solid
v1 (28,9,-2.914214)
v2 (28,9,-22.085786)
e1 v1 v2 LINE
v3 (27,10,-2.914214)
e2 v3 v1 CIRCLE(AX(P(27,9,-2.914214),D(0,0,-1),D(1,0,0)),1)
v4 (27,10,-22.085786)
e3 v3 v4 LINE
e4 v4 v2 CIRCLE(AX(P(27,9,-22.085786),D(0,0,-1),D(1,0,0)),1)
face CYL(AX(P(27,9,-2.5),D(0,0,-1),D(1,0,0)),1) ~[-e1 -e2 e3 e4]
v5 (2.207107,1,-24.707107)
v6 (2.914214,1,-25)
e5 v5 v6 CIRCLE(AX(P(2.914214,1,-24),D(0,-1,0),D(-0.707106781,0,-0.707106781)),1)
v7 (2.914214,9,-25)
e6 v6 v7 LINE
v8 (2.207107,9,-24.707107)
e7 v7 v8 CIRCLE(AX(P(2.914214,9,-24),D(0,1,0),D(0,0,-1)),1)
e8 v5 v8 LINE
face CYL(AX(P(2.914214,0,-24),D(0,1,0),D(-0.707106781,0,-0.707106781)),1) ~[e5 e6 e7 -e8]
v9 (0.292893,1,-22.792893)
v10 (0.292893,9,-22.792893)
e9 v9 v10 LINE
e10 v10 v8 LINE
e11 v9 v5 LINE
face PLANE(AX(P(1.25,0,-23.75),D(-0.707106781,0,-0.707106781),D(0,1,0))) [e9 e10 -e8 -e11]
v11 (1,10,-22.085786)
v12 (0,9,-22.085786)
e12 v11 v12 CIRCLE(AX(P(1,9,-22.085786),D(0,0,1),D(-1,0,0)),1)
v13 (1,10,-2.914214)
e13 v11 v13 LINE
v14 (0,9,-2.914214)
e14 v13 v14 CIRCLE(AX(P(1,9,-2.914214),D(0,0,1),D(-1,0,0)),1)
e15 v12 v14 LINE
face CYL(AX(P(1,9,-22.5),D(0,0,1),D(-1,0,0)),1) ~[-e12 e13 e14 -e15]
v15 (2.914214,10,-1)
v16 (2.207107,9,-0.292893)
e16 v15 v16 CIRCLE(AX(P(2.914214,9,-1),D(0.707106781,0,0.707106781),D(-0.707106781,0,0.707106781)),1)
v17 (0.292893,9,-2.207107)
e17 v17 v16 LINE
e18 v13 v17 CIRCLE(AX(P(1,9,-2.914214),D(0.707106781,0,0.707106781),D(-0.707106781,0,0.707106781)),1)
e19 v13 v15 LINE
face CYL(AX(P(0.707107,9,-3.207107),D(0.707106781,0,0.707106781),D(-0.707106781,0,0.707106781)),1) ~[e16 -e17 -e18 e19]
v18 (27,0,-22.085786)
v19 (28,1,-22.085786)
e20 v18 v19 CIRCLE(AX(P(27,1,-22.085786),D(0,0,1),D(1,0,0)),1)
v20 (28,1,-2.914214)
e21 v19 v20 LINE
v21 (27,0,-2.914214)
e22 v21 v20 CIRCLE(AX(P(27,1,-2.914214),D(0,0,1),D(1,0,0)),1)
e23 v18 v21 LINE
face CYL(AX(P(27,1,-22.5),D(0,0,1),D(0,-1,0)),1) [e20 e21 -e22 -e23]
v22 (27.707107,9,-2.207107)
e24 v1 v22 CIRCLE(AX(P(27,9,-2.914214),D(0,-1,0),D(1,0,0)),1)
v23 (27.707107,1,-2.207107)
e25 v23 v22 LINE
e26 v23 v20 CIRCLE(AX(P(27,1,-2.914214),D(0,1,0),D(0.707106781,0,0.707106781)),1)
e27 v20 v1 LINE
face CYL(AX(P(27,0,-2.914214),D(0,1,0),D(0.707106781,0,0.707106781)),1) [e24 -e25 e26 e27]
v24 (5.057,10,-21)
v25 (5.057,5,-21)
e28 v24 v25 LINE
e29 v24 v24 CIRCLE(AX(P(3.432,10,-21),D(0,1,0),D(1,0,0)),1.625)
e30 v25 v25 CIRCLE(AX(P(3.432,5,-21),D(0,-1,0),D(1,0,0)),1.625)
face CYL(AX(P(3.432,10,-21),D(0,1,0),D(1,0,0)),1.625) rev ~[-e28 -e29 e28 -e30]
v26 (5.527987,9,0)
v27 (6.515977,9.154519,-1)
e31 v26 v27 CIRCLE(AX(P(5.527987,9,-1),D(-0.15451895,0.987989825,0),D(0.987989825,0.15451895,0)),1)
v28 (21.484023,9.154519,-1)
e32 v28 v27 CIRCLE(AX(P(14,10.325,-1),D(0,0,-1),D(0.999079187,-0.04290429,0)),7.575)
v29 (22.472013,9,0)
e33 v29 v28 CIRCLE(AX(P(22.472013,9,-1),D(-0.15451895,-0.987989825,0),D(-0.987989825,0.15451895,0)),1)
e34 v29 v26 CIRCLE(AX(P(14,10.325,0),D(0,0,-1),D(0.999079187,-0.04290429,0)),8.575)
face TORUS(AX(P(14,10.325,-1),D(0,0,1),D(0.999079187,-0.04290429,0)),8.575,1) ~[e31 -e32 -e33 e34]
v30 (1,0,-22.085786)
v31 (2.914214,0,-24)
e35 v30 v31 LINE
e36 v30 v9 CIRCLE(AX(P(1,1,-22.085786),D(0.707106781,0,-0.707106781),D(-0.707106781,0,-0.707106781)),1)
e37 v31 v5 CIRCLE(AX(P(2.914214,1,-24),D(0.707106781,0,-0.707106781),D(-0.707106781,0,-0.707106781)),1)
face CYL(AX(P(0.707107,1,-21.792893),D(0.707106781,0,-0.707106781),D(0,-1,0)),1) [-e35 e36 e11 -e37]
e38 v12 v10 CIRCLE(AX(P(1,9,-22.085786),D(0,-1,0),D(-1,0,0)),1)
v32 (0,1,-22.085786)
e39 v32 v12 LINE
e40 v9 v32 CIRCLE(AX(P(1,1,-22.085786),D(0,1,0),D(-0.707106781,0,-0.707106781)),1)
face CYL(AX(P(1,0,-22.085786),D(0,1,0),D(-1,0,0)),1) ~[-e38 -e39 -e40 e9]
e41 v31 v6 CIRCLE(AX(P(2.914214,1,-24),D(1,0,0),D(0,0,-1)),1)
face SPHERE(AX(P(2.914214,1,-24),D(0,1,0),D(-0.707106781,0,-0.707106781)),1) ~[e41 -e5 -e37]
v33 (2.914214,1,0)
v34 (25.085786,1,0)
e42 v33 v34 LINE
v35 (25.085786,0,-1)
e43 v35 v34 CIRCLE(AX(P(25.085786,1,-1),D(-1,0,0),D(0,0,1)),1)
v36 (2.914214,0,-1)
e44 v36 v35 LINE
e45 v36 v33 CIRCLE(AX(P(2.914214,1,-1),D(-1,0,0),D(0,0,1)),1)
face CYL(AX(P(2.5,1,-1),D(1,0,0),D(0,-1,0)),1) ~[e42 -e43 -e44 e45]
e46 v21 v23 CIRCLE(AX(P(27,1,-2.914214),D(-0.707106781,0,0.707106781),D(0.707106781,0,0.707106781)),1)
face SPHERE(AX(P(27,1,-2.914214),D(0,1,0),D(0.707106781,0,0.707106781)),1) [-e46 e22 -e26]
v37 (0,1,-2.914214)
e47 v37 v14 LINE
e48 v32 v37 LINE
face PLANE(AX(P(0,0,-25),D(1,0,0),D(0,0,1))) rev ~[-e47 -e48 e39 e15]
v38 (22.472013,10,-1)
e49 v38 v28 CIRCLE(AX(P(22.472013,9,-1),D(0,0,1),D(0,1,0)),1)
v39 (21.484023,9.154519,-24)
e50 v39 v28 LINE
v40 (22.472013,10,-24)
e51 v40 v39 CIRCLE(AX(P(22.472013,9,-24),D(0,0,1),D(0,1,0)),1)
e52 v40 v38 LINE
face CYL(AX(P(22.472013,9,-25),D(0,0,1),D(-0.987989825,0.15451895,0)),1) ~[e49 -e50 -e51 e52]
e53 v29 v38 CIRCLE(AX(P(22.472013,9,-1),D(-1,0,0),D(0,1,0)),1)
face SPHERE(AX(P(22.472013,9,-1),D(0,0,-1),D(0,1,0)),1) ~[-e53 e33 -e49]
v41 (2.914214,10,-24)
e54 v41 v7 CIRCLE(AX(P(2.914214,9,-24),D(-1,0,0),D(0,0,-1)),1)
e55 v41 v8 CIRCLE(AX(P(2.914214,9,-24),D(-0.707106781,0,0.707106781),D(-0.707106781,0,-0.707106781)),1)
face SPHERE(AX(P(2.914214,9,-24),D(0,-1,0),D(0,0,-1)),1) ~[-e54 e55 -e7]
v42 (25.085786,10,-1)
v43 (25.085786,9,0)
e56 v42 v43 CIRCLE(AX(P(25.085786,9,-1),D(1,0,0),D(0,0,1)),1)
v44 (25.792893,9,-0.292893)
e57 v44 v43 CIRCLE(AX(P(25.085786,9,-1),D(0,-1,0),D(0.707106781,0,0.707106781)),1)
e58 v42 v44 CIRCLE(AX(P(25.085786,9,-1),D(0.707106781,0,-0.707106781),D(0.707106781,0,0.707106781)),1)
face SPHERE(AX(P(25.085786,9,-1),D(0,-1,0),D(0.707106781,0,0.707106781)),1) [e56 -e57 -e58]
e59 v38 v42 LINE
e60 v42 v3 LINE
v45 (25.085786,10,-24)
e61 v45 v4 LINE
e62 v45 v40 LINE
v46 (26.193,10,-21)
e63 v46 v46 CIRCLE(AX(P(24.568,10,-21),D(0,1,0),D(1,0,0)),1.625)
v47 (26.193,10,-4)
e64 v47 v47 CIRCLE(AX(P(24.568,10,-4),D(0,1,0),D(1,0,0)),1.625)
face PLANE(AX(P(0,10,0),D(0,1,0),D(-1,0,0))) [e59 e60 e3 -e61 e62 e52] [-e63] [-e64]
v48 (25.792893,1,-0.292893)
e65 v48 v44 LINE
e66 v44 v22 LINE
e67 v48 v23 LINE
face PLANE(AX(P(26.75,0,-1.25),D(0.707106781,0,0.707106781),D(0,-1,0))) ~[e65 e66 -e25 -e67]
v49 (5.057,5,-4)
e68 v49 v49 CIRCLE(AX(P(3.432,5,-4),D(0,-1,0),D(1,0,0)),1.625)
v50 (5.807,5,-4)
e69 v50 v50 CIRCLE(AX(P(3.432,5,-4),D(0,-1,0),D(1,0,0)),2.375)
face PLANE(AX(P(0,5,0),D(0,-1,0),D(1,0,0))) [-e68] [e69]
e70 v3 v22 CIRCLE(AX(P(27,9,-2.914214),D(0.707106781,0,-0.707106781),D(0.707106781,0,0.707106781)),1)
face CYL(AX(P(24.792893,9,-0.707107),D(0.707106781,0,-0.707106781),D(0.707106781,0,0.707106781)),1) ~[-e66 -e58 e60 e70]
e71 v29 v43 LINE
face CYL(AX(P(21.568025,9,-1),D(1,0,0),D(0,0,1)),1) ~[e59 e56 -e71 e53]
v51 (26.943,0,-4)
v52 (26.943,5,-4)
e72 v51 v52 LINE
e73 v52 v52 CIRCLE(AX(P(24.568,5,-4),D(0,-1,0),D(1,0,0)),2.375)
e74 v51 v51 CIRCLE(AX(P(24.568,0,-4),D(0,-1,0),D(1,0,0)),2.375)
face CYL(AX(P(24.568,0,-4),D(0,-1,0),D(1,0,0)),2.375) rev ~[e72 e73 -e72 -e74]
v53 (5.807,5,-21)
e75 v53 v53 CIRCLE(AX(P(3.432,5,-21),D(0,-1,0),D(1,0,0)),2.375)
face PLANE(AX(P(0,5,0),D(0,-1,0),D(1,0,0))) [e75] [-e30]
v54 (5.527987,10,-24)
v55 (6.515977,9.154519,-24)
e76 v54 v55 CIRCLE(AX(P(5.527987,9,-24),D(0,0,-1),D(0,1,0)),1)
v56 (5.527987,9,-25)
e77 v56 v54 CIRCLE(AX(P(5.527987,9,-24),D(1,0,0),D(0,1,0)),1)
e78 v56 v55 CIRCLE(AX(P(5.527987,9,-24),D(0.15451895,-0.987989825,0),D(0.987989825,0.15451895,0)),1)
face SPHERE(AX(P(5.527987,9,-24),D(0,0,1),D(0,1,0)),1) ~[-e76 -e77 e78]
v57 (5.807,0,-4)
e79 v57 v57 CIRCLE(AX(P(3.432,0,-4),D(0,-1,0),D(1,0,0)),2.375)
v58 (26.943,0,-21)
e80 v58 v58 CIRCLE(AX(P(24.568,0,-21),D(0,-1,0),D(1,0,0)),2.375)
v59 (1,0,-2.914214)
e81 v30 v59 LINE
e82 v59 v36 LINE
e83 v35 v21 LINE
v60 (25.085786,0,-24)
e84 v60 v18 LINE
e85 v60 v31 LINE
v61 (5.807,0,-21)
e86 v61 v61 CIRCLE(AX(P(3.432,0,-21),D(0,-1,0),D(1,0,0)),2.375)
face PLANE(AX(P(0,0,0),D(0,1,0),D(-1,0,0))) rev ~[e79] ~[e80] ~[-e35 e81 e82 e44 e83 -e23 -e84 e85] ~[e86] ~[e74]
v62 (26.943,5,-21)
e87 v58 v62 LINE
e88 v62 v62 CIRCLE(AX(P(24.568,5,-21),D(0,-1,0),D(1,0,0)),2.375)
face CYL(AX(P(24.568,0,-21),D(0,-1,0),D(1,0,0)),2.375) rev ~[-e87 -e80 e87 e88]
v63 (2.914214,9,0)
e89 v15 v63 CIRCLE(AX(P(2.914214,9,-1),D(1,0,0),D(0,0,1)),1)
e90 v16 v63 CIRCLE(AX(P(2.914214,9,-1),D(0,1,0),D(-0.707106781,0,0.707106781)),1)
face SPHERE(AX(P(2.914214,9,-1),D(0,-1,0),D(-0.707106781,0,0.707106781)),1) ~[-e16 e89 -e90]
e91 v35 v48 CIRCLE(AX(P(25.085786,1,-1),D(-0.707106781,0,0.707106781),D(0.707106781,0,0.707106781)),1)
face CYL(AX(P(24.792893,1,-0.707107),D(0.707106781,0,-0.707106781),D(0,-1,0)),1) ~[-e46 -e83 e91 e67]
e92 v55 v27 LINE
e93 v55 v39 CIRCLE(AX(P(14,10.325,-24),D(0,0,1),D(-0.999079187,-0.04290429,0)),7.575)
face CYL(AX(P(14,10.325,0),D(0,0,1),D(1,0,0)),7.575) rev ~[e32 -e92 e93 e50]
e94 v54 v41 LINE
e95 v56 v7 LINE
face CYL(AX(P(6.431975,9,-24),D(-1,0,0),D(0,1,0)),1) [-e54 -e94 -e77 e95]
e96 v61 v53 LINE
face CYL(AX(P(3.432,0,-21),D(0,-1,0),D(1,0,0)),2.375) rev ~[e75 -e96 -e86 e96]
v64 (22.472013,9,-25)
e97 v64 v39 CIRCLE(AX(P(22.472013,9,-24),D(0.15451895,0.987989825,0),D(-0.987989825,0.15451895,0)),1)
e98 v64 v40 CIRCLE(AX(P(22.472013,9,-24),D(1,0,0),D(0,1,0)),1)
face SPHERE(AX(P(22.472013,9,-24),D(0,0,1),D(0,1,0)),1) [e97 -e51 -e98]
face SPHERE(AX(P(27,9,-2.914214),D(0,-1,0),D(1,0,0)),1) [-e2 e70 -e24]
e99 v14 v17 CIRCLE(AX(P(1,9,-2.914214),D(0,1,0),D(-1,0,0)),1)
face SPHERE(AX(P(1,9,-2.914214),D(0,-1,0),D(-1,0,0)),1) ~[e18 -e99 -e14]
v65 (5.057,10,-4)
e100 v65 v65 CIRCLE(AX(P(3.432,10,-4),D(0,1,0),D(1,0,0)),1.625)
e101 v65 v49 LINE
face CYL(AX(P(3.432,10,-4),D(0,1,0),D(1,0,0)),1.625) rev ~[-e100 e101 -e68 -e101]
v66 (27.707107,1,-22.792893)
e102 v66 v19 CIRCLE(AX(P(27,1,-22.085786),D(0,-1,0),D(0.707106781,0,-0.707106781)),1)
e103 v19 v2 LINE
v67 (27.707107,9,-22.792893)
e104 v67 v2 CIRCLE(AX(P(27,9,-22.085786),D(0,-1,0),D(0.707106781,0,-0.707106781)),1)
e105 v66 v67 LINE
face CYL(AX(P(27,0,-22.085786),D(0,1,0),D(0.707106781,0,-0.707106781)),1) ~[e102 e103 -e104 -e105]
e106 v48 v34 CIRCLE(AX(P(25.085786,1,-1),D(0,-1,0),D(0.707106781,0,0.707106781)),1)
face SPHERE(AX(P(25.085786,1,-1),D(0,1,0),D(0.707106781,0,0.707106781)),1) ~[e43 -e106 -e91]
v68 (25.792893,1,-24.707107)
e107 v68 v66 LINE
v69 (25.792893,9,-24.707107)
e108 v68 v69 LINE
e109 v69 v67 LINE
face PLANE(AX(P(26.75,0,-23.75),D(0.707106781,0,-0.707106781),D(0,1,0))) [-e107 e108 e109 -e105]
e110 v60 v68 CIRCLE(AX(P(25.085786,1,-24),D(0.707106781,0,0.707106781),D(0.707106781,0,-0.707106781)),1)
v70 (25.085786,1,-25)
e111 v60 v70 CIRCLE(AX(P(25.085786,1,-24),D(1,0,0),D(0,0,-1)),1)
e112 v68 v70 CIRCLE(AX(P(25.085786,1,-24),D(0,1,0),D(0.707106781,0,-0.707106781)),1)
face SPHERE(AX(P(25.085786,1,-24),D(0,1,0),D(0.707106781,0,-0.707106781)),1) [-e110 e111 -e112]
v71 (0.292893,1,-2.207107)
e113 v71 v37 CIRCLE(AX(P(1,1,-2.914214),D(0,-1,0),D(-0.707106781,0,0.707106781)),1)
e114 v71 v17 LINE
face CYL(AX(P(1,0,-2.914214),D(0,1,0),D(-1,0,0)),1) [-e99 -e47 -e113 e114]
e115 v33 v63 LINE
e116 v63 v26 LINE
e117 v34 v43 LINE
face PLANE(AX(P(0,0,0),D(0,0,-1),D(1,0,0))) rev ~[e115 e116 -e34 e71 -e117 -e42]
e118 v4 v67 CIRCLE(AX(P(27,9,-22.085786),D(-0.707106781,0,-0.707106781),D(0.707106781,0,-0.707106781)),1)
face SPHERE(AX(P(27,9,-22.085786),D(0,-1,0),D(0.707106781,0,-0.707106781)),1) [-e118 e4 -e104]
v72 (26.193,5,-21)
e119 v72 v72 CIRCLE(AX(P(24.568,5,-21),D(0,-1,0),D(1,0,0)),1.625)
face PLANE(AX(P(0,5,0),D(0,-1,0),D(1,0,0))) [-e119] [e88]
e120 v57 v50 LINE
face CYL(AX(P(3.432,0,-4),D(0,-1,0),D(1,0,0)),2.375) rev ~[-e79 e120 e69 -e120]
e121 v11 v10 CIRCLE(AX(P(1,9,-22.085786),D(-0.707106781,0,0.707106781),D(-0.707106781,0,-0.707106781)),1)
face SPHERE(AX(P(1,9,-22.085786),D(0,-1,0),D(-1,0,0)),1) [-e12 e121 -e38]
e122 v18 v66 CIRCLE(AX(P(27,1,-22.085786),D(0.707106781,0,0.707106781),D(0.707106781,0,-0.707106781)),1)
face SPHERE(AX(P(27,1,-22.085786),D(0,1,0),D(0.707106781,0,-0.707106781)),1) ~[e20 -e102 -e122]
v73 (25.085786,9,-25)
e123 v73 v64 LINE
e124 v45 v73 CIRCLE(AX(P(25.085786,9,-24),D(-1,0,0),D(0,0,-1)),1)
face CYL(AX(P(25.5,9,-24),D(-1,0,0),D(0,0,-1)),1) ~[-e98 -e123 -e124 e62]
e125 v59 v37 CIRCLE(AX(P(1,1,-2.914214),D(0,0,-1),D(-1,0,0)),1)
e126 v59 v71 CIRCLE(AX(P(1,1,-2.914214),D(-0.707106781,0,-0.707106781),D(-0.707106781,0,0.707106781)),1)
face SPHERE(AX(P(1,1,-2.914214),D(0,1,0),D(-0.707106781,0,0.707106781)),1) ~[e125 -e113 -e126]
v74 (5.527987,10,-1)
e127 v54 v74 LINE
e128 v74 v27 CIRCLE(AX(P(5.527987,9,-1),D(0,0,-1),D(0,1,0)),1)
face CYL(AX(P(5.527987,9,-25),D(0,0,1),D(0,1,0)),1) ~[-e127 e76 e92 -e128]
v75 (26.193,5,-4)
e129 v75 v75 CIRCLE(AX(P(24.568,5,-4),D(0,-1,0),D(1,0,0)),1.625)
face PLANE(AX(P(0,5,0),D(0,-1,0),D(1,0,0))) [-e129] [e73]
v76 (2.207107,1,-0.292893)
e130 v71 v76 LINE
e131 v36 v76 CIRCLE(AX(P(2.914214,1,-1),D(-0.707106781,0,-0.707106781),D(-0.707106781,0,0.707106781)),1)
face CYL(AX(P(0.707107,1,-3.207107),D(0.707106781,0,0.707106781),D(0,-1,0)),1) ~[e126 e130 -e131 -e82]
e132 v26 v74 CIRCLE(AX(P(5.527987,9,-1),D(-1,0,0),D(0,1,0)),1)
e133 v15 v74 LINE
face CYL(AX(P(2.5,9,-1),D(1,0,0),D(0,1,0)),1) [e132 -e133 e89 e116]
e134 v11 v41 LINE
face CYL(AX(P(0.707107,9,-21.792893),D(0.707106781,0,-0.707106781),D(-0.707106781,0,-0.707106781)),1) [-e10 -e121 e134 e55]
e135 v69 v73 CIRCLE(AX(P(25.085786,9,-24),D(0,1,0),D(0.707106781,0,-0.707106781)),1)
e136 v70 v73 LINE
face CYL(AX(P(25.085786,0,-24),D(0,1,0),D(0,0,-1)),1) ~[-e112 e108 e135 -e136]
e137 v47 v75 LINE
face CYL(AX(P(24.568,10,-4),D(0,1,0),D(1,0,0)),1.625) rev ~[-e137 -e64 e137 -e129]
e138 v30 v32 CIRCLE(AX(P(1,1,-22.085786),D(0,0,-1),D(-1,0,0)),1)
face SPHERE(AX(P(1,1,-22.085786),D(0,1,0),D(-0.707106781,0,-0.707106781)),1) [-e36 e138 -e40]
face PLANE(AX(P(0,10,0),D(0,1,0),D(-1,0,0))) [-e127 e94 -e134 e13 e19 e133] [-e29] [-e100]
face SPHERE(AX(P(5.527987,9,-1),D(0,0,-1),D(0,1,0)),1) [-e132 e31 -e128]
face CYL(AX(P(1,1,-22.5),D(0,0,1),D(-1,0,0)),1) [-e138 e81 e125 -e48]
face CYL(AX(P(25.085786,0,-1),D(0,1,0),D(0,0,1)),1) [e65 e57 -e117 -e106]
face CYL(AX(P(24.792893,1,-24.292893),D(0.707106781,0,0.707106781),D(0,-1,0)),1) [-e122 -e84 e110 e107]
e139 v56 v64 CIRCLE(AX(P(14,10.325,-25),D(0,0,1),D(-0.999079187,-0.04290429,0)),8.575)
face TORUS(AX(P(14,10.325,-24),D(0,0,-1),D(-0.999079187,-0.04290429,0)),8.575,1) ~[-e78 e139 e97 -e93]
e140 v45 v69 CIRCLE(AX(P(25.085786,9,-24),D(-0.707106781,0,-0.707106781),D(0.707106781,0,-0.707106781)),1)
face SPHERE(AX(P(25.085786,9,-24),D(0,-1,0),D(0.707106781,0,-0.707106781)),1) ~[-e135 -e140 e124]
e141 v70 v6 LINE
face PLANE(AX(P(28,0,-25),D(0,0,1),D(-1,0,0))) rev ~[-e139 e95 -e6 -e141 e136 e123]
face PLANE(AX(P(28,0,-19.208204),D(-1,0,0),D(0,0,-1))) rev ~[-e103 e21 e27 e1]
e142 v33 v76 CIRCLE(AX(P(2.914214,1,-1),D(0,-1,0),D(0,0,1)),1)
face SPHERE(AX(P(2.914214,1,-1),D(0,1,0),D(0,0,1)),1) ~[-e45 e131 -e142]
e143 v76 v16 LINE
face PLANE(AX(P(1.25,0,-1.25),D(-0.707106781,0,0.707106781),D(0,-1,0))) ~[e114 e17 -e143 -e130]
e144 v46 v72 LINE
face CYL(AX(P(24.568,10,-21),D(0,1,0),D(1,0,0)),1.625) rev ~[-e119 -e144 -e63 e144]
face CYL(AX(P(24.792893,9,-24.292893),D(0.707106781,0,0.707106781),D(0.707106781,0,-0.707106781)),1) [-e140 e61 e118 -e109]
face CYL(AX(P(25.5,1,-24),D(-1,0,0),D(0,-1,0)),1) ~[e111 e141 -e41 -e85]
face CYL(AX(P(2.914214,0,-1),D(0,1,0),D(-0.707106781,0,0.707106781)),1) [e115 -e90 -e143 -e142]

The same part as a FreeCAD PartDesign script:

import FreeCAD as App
import Part
import Sketcher
from FreeCAD import Vector


def edges_at(feature, points):
    """Names of the edges that pass closest to the given points."""
    edges = feature.Shape.Edges
    near = lambda p: min(range(len(edges)), key=lambda i: edges[i].distToShape(Part.Vertex(*p))[0])
    return sorted({f"Edge{near(p) + 1}" for p in points})

doc = App.newDocument("Part")
body = doc.addObject("PartDesign::Body", "Body")

sketch1 = body.newObject("Sketcher::SketchObject", "Sketch")
sketch1.AttachmentSupport = (doc.getObject("XZ_Plane"), [""])
sketch1.MapMode = "FlatFace"
sketch1.addGeometry([
    Part.LineSegment(Vector(0, -25, 0), Vector(0, 0, 0)),
    Part.LineSegment(Vector(0, 0, 0), Vector(28, 0, 0)),
    Part.LineSegment(Vector(28, 0, 0), Vector(28, -25, 0)),
    Part.LineSegment(Vector(28, -25, 0), Vector(0, -25, 0)),
], False)
sketch1.addConstraint([
    Sketcher.Constraint("Coincident", 0, 2, 1, 1),
    Sketcher.Constraint("Coincident", 1, 2, 2, 1),
    Sketcher.Constraint("Coincident", 2, 2, 3, 1),
    Sketcher.Constraint("Coincident", 3, 2, 0, 1),
    Sketcher.Constraint("Vertical", 0),
    Sketcher.Constraint("Horizontal", 1),
    Sketcher.Constraint("Vertical", 2),
    Sketcher.Constraint("Horizontal", 3),
    Sketcher.Constraint("Coincident", 0, 2, -1, 1),
    Sketcher.Constraint("DistanceX", 1, 1, 1, 2, 28.0),
    Sketcher.Constraint("DistanceY", 0, 1, 0, 2, 25.0),
])
pad1 = body.newObject("PartDesign::Pad", "Pad")
pad1.Profile = sketch1
pad1.Length = 10
pad1.Reversed = True

sketch2 = body.newObject("Sketcher::SketchObject", "Sketch001")
sketch2.AttachmentSupport = (doc.getObject("XY_Plane"), [""])
sketch2.MapMode = "FlatFace"
sketch2.addGeometry(Part.Circle(Vector(14, 10, 0), Vector(0, 0, 1), 8), False)
sketch2.addConstraint([
    Sketcher.Constraint("Diameter", 0, 15.15),
    Sketcher.Constraint("DistanceX", -1, 1, 0, 3, 14.0),
    Sketcher.Constraint("DistanceY", -1, 1, 0, 3, 10.325),
])
pocket1 = body.newObject("PartDesign::Pocket", "Pocket")
pocket1.Profile = sketch2
pocket1.Type = "ThroughAll"

sketch3 = body.newObject("Sketcher::SketchObject", "Sketch002")
sketch3.AttachmentSupport = (doc.getObject("XZ_Plane"), [""])
sketch3.MapMode = "FlatFace"
sketch3.AttachmentOffset = App.Placement(Vector(0, 0, -10), App.Rotation())
sketch3.addGeometry([
    Part.Circle(Vector(3.4, -21, 0), Vector(0, 0, 1), 1.6),
    Part.Circle(Vector(24.6, -21, 0), Vector(0, 0, 1), 1.6),
    Part.Circle(Vector(3.4, -4, 0), Vector(0, 0, 1), 1.6),
    Part.Circle(Vector(24.6, -4, 0), Vector(0, 0, 1), 1.6),
], False)
sketch3.addConstraint([
    Sketcher.Constraint("Equal", 0, 1),
    Sketcher.Constraint("Equal", 1, 2),
    Sketcher.Constraint("Equal", 2, 3),
    Sketcher.Constraint("Horizontal", 0, 3, 1, 3),
    Sketcher.Constraint("Horizontal", 2, 3, 3, 3),
    Sketcher.Constraint("Vertical", 0, 3, 2, 3),
    Sketcher.Constraint("Vertical", 1, 3, 3, 3),
    Sketcher.Constraint("Diameter", 0, 3.25),
    Sketcher.Constraint("DistanceY", 2, 3, -1, 1, 4.0),
    Sketcher.Constraint("DistanceY", 0, 3, -1, 1, 21.0),
    Sketcher.Constraint("DistanceX", -1, 1, 0, 3, 3.432),
    Sketcher.Constraint("DistanceX", -1, 1, 1, 3, 24.568),
])
pocket2 = body.newObject("PartDesign::Pocket", "Pocket001")
pocket2.Profile = sketch3
pocket2.Type = "ThroughAll"
pocket2.Reversed = True
doc.recompute()

chamfer = body.newObject("PartDesign::Chamfer", "Chamfer")
chamfer.Base = (pocket2, edges_at(pocket2, [
    (0, 5, 0),
    (28, 5, 0),
    (28, 5, -25),
    (0, 5, -25),
]))
chamfer.Size = 2.5
doc.recompute()

fillet = body.newObject("PartDesign::Fillet", "Fillet")
fillet.Base = (chamfer, edges_at(chamfer, [
    (14, 0, -25),
    (2.5, 5, -25),
    (0, 5, -22.5),
    (1.25, 0, -23.75),
    (14, 2.75, -25),
    (14, 2.75, 0),
    (6.432, 10, -12.5),
    (21.568, 10, -12.5),
    (0, 10, -12.5),
    (1.25, 10, -1.25),
    (4.466, 10, 0),
    (4.466, 10, -25),
    (1.25, 10, -23.75),
    (23.534, 10, -25),
    (25.5, 5, -25),
    (28, 5, -22.5),
    (26.75, 0, -23.75),
    (26.75, 10, -23.75),
    (28, 10, -12.5),
    (26.75, 10, -1.25),
    (23.534, 10, 0),
    (28, 0, -12.5),
    (28, 5, -2.5),
    (26.75, 0, -1.25),
    (14, 0, 0),
    (1.25, 0, -1.25),
    (0, 0, -12.5),
    (25.5, 5, 0),
    (2.5, 5, 0),
    (0, 5, -2.5),
]))
fillet.Radius = 1

sketch4 = body.newObject("Sketcher::SketchObject", "Sketch003")
sketch4.AttachmentSupport = (doc.getObject("XZ_Plane"), [""])
sketch4.MapMode = "FlatFace"
sketch4.addGeometry([
    Part.Circle(Vector(3.4, -4, 0), Vector(0, 0, 1), 2.4),
    Part.Circle(Vector(3.4, -4, 0), Vector(0, 0, 1), 1.6),
    Part.Circle(Vector(3.4, -21, 0), Vector(0, 0, 1), 2.4),
    Part.Circle(Vector(3.4, -21, 0), Vector(0, 0, 1), 1.6),
    Part.Circle(Vector(24.6, -21, 0), Vector(0, 0, 1), 2.4),
    Part.Circle(Vector(24.6, -21, 0), Vector(0, 0, 1), 1.6),
    Part.Circle(Vector(24.6, -4, 0), Vector(0, 0, 1), 2.4),
    Part.Circle(Vector(24.6, -4, 0), Vector(0, 0, 1), 1.6),
], False)
sketch4.addConstraint([
    Sketcher.Constraint("Coincident", 1, 3, 0, 3),
    Sketcher.Constraint("Coincident", 3, 3, 2, 3),
    Sketcher.Constraint("Coincident", 5, 3, 4, 3),
    Sketcher.Constraint("Coincident", 7, 3, 6, 3),
    Sketcher.Constraint("Equal", 0, 2),
    Sketcher.Constraint("Equal", 1, 3),
    Sketcher.Constraint("Equal", 2, 4),
    Sketcher.Constraint("Equal", 3, 5),
    Sketcher.Constraint("Equal", 4, 6),
    Sketcher.Constraint("Equal", 5, 7),
    Sketcher.Constraint("Horizontal", 3, 3, 4, 3),
    Sketcher.Constraint("Horizontal", 1, 3, 6, 3),
    Sketcher.Constraint("Vertical", 1, 3, 2, 3),
    Sketcher.Constraint("Vertical", 5, 3, 6, 3),
    Sketcher.Constraint("Diameter", 0, 4.75),
    Sketcher.Constraint("Diameter", 1, 3.25),
    Sketcher.Constraint("DistanceY", 0, 3, -1, 1, 4.0),
    Sketcher.Constraint("DistanceY", 2, 3, -1, 1, 21.0),
    Sketcher.Constraint("DistanceX", -1, 1, 0, 3, 3.432),
    Sketcher.Constraint("DistanceX", -1, 1, 4, 3, 24.568),
])
pocket3 = body.newObject("PartDesign::Pocket", "Pocket002")
pocket3.Profile = sketch4
pocket3.Length = 5

doc.recompute()
